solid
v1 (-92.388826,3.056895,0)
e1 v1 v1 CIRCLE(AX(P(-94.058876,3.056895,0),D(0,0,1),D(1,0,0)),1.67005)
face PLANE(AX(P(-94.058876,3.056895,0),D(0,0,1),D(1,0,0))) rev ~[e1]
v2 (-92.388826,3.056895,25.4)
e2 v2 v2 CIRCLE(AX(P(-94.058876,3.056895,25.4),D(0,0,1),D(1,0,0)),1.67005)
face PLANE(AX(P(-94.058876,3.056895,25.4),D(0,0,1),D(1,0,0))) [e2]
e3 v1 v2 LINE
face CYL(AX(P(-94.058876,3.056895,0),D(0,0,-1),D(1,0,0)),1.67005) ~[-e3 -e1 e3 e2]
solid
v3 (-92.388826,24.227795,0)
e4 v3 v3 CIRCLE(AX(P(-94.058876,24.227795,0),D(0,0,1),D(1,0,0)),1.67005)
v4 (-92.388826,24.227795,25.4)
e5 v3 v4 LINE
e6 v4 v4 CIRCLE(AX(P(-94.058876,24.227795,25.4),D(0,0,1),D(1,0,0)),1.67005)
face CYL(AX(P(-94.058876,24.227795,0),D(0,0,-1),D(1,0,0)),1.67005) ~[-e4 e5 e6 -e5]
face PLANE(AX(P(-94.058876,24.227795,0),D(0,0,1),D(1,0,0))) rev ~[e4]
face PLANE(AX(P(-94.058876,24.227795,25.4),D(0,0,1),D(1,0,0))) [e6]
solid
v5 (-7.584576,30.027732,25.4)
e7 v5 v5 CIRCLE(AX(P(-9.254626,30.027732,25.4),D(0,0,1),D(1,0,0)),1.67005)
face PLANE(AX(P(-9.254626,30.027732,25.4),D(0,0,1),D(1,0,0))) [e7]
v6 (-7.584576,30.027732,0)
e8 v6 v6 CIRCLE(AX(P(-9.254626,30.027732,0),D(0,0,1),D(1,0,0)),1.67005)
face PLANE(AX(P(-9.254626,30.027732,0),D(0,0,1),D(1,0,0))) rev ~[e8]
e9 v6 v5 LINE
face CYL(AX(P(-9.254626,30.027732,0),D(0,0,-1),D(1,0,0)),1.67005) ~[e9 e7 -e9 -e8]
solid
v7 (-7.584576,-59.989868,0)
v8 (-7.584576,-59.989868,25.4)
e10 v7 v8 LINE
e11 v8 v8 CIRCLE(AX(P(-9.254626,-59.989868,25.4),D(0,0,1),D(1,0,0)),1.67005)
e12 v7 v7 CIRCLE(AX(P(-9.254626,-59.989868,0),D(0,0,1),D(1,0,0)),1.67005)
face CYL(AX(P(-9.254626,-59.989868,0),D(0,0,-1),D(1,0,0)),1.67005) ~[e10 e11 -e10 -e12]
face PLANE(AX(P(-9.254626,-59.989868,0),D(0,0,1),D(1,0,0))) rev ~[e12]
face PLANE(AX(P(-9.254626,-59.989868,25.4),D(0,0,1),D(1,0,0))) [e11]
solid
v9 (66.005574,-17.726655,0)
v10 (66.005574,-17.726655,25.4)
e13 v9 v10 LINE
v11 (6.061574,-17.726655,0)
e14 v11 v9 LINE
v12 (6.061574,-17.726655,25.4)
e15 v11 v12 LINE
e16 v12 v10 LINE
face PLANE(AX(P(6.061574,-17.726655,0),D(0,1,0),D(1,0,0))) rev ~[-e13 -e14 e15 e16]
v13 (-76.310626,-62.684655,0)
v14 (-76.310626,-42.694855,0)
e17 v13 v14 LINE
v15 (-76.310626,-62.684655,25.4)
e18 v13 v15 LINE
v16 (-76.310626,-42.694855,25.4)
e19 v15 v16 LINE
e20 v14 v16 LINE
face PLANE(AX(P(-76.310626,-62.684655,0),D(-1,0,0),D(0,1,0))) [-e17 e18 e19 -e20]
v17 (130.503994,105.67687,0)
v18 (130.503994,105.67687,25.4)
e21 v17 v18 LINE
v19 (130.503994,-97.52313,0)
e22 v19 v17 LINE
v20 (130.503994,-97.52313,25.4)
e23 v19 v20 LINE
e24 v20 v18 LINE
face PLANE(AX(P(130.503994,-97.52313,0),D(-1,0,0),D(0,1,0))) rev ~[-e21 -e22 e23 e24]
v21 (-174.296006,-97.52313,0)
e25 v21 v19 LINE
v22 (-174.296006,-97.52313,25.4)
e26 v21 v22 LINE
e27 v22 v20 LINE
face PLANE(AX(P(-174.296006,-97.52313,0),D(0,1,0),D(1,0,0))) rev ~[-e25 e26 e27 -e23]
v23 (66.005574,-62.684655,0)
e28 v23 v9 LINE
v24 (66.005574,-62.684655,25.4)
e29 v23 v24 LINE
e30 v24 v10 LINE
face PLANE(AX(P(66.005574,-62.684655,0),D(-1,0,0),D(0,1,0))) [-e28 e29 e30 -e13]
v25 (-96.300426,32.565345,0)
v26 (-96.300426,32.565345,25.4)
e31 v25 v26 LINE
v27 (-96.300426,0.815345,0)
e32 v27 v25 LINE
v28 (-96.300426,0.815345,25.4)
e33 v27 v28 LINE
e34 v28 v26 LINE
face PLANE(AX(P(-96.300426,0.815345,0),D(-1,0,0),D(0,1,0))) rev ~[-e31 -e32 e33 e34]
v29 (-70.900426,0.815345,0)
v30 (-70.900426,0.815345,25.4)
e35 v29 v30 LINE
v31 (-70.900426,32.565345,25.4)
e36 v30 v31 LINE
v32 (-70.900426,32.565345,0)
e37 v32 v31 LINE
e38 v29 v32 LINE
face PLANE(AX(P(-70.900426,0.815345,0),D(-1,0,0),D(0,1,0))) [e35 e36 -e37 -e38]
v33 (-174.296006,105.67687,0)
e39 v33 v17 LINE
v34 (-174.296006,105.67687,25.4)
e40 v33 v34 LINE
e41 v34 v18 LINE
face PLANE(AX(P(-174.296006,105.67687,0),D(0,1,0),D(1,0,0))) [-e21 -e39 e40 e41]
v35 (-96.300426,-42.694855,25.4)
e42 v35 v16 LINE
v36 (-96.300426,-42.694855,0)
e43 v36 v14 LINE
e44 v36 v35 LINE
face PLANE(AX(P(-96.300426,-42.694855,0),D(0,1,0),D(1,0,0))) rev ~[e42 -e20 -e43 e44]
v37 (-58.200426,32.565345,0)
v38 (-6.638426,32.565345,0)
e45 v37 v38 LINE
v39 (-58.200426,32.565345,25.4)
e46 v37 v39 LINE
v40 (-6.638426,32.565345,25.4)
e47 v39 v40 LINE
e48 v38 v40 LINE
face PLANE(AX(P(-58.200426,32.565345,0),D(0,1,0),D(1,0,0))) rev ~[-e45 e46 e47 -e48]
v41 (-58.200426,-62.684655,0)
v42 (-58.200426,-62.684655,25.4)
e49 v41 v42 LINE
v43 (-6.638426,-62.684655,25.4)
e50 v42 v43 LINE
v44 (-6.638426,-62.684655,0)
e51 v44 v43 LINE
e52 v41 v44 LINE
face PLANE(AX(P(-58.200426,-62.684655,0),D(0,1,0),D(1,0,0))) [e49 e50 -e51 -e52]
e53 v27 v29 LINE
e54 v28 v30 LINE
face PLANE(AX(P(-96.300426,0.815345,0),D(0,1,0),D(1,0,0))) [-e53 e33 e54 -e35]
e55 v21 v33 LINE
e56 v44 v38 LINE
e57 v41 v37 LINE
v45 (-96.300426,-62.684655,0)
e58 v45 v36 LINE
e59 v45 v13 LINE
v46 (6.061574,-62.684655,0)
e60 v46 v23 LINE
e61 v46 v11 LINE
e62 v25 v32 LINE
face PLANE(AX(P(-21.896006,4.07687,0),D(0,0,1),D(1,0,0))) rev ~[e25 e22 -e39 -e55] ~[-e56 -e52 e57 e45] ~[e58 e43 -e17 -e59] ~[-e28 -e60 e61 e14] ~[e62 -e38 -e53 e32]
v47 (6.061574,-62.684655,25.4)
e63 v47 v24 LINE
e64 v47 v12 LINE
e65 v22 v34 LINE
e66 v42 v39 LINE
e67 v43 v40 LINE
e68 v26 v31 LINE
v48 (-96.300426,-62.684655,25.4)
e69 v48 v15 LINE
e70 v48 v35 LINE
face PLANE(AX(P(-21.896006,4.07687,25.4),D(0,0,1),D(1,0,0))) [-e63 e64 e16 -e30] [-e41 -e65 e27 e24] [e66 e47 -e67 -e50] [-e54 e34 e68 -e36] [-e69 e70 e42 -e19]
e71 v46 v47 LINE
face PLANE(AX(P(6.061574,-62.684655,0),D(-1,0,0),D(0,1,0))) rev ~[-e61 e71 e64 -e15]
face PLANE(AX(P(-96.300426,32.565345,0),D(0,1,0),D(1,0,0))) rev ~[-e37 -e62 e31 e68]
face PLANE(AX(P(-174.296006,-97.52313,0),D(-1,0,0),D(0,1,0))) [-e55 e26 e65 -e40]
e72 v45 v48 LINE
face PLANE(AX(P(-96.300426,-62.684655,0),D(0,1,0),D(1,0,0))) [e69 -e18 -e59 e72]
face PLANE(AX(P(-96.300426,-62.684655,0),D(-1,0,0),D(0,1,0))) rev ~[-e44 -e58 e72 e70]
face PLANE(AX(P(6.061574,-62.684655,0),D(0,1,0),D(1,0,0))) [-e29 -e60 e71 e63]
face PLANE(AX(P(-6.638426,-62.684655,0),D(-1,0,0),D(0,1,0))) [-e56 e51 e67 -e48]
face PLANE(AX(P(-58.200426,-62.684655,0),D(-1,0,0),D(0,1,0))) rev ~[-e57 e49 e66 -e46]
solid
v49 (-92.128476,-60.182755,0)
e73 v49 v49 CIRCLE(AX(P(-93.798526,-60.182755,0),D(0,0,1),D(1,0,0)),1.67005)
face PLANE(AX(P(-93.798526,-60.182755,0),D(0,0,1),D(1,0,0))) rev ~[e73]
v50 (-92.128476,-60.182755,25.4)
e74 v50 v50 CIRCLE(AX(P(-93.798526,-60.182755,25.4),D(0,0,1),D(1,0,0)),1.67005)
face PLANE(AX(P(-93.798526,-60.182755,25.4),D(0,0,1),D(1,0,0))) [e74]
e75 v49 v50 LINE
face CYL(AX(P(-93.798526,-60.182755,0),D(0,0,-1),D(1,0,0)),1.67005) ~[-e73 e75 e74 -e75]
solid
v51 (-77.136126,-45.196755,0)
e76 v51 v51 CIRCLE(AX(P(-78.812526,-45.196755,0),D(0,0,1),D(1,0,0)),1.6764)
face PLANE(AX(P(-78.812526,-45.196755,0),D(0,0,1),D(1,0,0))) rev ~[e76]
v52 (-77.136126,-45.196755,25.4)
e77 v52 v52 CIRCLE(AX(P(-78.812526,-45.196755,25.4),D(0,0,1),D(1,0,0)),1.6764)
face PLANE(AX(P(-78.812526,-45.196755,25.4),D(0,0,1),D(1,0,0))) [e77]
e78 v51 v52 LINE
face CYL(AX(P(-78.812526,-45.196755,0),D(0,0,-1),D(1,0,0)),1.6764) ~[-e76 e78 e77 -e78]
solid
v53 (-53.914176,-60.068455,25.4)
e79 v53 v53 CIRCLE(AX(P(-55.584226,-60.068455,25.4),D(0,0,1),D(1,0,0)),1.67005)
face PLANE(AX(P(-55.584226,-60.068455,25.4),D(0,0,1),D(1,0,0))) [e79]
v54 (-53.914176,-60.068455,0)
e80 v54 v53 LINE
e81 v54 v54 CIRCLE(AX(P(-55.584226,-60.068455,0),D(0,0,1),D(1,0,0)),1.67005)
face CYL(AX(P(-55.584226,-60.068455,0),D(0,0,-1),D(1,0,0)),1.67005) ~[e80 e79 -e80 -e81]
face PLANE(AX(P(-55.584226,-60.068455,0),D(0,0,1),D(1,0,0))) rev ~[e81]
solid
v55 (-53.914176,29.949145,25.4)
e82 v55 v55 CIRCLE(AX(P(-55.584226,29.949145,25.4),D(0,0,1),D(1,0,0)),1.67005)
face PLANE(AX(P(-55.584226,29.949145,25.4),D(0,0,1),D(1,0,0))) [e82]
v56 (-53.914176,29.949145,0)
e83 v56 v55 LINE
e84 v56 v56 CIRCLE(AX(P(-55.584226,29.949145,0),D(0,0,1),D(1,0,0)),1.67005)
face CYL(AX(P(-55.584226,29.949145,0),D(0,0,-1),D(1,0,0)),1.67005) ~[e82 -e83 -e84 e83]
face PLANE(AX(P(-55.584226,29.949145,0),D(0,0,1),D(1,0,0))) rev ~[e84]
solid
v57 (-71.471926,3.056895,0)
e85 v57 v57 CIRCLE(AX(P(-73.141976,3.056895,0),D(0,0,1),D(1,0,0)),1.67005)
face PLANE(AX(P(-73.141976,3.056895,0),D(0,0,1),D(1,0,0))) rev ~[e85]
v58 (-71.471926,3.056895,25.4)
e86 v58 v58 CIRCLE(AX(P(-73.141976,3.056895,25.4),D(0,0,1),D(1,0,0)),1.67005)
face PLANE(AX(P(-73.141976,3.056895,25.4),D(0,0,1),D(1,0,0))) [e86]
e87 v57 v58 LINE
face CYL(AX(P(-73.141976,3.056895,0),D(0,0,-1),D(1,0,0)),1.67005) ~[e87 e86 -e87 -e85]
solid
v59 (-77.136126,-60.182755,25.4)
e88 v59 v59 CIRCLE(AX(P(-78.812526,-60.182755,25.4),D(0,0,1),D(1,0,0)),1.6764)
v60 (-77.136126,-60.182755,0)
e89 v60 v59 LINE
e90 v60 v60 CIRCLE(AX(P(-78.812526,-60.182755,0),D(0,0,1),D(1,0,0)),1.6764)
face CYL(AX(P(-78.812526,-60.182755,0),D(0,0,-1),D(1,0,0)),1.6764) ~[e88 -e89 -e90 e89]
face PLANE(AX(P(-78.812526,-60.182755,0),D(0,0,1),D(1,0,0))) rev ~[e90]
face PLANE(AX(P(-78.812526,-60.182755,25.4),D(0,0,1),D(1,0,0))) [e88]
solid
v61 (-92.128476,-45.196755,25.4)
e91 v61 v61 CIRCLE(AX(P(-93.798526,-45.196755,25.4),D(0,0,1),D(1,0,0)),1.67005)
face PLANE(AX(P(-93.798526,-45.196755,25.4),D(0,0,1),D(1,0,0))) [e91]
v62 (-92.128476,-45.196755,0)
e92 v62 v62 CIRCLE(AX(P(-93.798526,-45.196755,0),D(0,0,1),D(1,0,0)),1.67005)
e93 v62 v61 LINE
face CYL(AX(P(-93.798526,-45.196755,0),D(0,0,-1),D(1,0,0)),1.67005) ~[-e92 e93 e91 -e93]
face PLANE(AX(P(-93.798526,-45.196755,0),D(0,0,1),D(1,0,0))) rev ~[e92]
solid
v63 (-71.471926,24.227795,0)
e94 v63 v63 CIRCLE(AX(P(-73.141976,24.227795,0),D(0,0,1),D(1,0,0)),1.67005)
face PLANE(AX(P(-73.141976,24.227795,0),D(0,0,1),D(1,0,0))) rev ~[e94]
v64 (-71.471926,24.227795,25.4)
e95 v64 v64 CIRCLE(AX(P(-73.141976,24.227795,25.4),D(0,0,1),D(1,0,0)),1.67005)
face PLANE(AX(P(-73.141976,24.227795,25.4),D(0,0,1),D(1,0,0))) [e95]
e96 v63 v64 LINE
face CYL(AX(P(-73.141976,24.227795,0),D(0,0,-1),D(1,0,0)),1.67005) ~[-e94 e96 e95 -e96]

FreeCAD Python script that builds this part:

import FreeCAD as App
import Part
import Sketcher
Q = App.Units.Quantity


def add_polygon(sketch, points):
    """Adds a closed chain of lines whose ends are joined by coincident constraints."""
    first, n = sketch.GeometryCount, len(points)
    for a, b in zip(points, points[1:] + points[:1]):
        sketch.addGeometry(Part.LineSegment(App.Vector(*a, 0), App.Vector(*b, 0)), False)
    for i in range(n):
        sketch.addConstraint(Sketcher.Constraint("Coincident", first + i, 2, first + (i + 1) % n, 1))

doc = App.newDocument("Part")
body = doc.addObject("PartDesign::Body", "Body")
body.AllowCompound = True

sketch1 = body.newObject("Sketcher::SketchObject", "Sketch")
sketch1.AttachmentSupport = (doc.getObject("XY_Plane"), [""])
sketch1.MapMode = "FlatFace"
add_polygon(sketch1, [(-174.3, 105.7), (-174.3, -97.5), (130.5, -97.5), (130.5, 105.7)])
add_polygon(sketch1, [(-76.3, -62.7), (-96.3, -62.7), (-96.3, -42.7), (-76.3, -42.7)])
add_polygon(sketch1, [(66, -62.7), (6.1, -62.7), (6.1, -17.7), (66, -17.7)])
add_polygon(sketch1, [(-6.6, -62.7), (-58.2, -62.7), (-58.2, 32.6), (-6.6, 32.6)])
add_polygon(sketch1, [(-70.9, 0.8), (-96.3, 0.8), (-96.3, 32.6), (-70.9, 32.6)])
sketch1.addGeometry(Part.Circle(App.Vector(-94.1, 24.2, 0), App.Vector(0, 0, 1), 1.7), False)
sketch1.addGeometry(Part.Circle(App.Vector(-73.1, 24.2, 0), App.Vector(0, 0, 1), 1.7), False)
sketch1.addGeometry(Part.Circle(App.Vector(-73.1, 3.1, 0), App.Vector(0, 0, 1), 1.7), False)
sketch1.addGeometry(Part.Circle(App.Vector(-94.1, 3.1, 0), App.Vector(0, 0, 1), 1.7), False)
sketch1.addGeometry(Part.Circle(App.Vector(-93.8, -45.2, 0), App.Vector(0, 0, 1), 1.7), False)
sketch1.addGeometry(Part.Circle(App.Vector(-78.8, -45.2, 0), App.Vector(0, 0, 1), 1.7), False)
sketch1.addGeometry(Part.Circle(App.Vector(-78.8, -60.2, 0), App.Vector(0, 0, 1), 1.7), False)
sketch1.addGeometry(Part.Circle(App.Vector(-93.8, -60.2, 0), App.Vector(0, 0, 1), 1.7), False)
sketch1.addGeometry(Part.Circle(App.Vector(-55.6, -60.1, 0), App.Vector(0, 0, 1), 1.7), False)
sketch1.addGeometry(Part.Circle(App.Vector(-55.6, 29.9, 0), App.Vector(0, 0, 1), 1.7), False)
sketch1.addGeometry(Part.Circle(App.Vector(-9.3, 30, 0), App.Vector(0, 0, 1), 1.7), False)
sketch1.addGeometry(Part.Circle(App.Vector(-9.3, -60, 0), App.Vector(0, 0, 1), 1.7), False)
sketch1.addConstraint([
    Sketcher.Constraint("Vertical", 0),
    Sketcher.Constraint("Horizontal", 1),
    Sketcher.Constraint("Vertical", 2),
    Sketcher.Constraint("Horizontal", 3),
    Sketcher.Constraint("Horizontal", 4),
    Sketcher.Constraint("Vertical", 5),
    Sketcher.Constraint("Horizontal", 6),
    Sketcher.Constraint("Vertical", 7),
    Sketcher.Constraint("Horizontal", 8),
    Sketcher.Constraint("Vertical", 9),
    Sketcher.Constraint("Horizontal", 10),
    Sketcher.Constraint("Vertical", 11),
    Sketcher.Constraint("Horizontal", 12),
    Sketcher.Constraint("Vertical", 13),
    Sketcher.Constraint("Horizontal", 14),
    Sketcher.Constraint("Vertical", 15),
    Sketcher.Constraint("Horizontal", 16),
    Sketcher.Constraint("Vertical", 17),
    Sketcher.Constraint("Horizontal", 18),
    Sketcher.Constraint("Vertical", 19),
    Sketcher.Constraint("Equal", 20, 21),
    Sketcher.Constraint("Equal", 21, 22),
    Sketcher.Constraint("Equal", 22, 23),
    Sketcher.Constraint("Equal", 23, 24),
    Sketcher.Constraint("Equal", 25, 26),
    Sketcher.Constraint("Equal", 24, 27),
    Sketcher.Constraint("Equal", 27, 28),
    Sketcher.Constraint("Equal", 28, 29),
    Sketcher.Constraint("Equal", 29, 30),
    Sketcher.Constraint("Equal", 30, 31),
    Sketcher.Constraint("Horizontal", 20, 3, 21, 3),
    Sketcher.Constraint("Horizontal", 22, 3, 23, 3),
    Sketcher.Constraint("Horizontal", 24, 3, 25, 3),
    Sketcher.Constraint("Horizontal", 26, 3, 27, 3),
    Sketcher.Constraint("Horizontal", 7, 2, 8, 2),
    Sketcher.Constraint("Horizontal", 11, 2, 12, 2),
    Sketcher.Constraint("Horizontal", 14, 2, 17, 2),
    Sketcher.Constraint("Vertical", 21, 3, 22, 3),
    Sketcher.Constraint("Vertical", 20, 3, 23, 3),
    Sketcher.Constraint("Vertical", 25, 3, 26, 3),
    Sketcher.Constraint("Vertical", 24, 3, 27, 3),
    Sketcher.Constraint("Vertical", 28, 3, 29, 3),
    Sketcher.Constraint("Vertical", 30, 3, 31, 3),
    Sketcher.Constraint("Vertical", 5, 2, 16, 2),
    Sketcher.Constraint("Equal", 6, 5),
    Sketcher.Constraint("DistanceX", 1, 1, 1, 2, Q("12 in")),
    Sketcher.Constraint("DistanceX", 16, 2, 16, 1, Q("1 in")),
    Sketcher.Constraint("DistanceY", 0, 2, 0, 1, Q("8 in")),
    Sketcher.Constraint("Diameter", 25, Q("0.132 in")),
    Sketcher.Constraint("Diameter", 20, Q("0.1315 in")),
    Sketcher.Constraint("DistanceX", 8, 2, 8, 1, Q("2.36 in")),
    Sketcher.Constraint("DistanceX", 12, 2, 12, 1, Q("2.03 in")),
    Sketcher.Constraint("DistanceY", 9, 1, 9, 2, Q("1.77 in")),
    Sketcher.Constraint("DistanceY", 13, 1, 13, 2, Q("3.75 in")),
    Sketcher.Constraint("DistanceY", 17, 1, 17, 2, Q("1.25 in")),
    Sketcher.Constraint("DistanceX", 14, 2, 9, 2, Q("0.5 in")),
    Sketcher.Constraint("DistanceX", 18, 2, 13, 2, Q("0.5 in")),
    Sketcher.Constraint("DistanceX", 4, 2, 4, 1, Q("0.787 in")),
    Sketcher.Constraint("DistanceX", 24, 3, 25, 3, Q("0.59 in")),
    Sketcher.Constraint("DistanceY", 26, 3, 25, 3, Q("0.59 in")),
    Sketcher.Constraint("DistanceX", 29, 3, 30, 3, Q("1.824 in")),
    Sketcher.Constraint("DistanceX", 4, 2, 28, 3, Q("1.603 in")),
    Sketcher.Constraint("DistanceY", 4, 2, 28, 3, Q("0.103 in")),
    Sketcher.Constraint("DistanceY", 9, 2, 29, 3, Q("1.877 in")),
    Sketcher.Constraint("DistanceY", 24, 3, -1, 1, Q("1.7793998 in")),
    Sketcher.Constraint("DistanceY", 28, 3, -1, 1, Q("2.3648998 in")),
    Sketcher.Constraint("DistanceX", 20, 3, 21, 3, Q("0.8235 in")),
    Sketcher.Constraint("DistanceY", 22, 3, 21, 3, Q("0.8335 in")),
    Sketcher.Constraint("DistanceX", 26, 3, 28, 3, Q("0.9145 in")),
    Sketcher.Constraint("DistanceY", 0, 2, -1, 1, Q("97.52313 mm")),
    Sketcher.Constraint("DistanceX", 23, 3, 24, 3, Q("0.26035 mm")),
    Sketcher.Constraint("DistanceY", 24, 3, 23, 3, Q("48.25365 mm")),
    Sketcher.Constraint("DistanceX", 0, 2, 27, 3, Q("80.49748 mm")),
    Sketcher.Constraint("DistanceY", 1, 2, 31, 3, Q("37.533262 mm")),
    Sketcher.Constraint("DistanceY", 1, 2, 30, 3, Q("127.550862 mm")),
    Sketcher.Constraint("DistanceX", 20, 3, -1, 1, Q("94.058876 mm")),
])
pad1 = body.newObject("PartDesign::Pad", "Pad")
pad1.Profile = sketch1
pad1.Length = Q("1 in")

doc.recompute()
